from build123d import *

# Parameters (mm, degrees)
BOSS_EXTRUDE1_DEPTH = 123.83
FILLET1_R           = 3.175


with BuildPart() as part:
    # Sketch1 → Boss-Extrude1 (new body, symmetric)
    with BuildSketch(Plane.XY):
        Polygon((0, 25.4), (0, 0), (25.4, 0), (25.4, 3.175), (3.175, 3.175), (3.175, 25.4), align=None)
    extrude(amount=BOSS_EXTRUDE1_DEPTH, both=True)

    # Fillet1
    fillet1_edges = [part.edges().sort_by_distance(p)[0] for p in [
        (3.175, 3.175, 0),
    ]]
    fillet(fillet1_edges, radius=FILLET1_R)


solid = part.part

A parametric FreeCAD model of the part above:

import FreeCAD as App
import Part
import Sketcher
Q = App.Units.Quantity


def edges_at(feature, points):
    """Names of the edges that pass closest to the given points."""
    edges = feature.Shape.Edges
    near = lambda p: min(range(len(edges)), key=lambda i: edges[i].distToShape(Part.Vertex(*p))[0])
    return sorted({f"Edge{near(p) + 1}" for p in points})

doc = App.newDocument("Part")
body = doc.addObject("PartDesign::Body", "Body")

sketch1 = body.newObject("Sketcher::SketchObject", "Sketch")
sketch1.AttachmentSupport = (doc.getObject("XY_Plane"), [""])
sketch1.MapMode = "FlatFace"
sketch1.addGeometry([
    Part.LineSegment(App.Vector(0, 25.4, 0), App.Vector(0, 0, 0)),
    Part.LineSegment(App.Vector(0, 0, 0), App.Vector(25.4, 0, 0)),
    Part.LineSegment(App.Vector(25.4, 0, 0), App.Vector(25.4, 3.2, 0)),
    Part.LineSegment(App.Vector(25.4, 3.2, 0), App.Vector(3.2, 3.2, 0)),
    Part.LineSegment(App.Vector(3.2, 3.2, 0), App.Vector(3.2, 25.4, 0)),
    Part.LineSegment(App.Vector(3.2, 25.4, 0), App.Vector(0, 25.4, 0)),
], False)
sketch1.addConstraint([
    Sketcher.Constraint("Coincident", 0, 2, 1, 1),
    Sketcher.Constraint("Coincident", 1, 2, 2, 1),
    Sketcher.Constraint("Coincident", 2, 2, 3, 1),
    Sketcher.Constraint("Coincident", 3, 2, 4, 1),
    Sketcher.Constraint("Coincident", 4, 2, 5, 1),
    Sketcher.Constraint("Coincident", 5, 2, 0, 1),
    Sketcher.Constraint("Vertical", 0),
    Sketcher.Constraint("Horizontal", 1),
    Sketcher.Constraint("Vertical", 2),
    Sketcher.Constraint("Horizontal", 3),
    Sketcher.Constraint("Vertical", 4),
    Sketcher.Constraint("Horizontal", 5),
    Sketcher.Constraint("Coincident", 0, 2, -1, 1),
    Sketcher.Constraint("Equal", 1, 0),
    Sketcher.Constraint("Equal", 5, 2),
    Sketcher.Constraint("DistanceX", 1, 1, 1, 2, Q("1 in")),
    Sketcher.Constraint("DistanceX", 3, 2, 3, 1, Q("0.875 in")),
])
pad1 = body.newObject("PartDesign::Pad", "Pad")
pad1.Profile = sketch1
pad1.Length = 247.66
pad1.Midplane = True
doc.recompute()

fillet = body.newObject("PartDesign::Fillet", "Fillet")
fillet.Base = (pad1, edges_at(pad1, [(3.175, 3.175, 0)]))
fillet.Radius = Q("0.125 in")

doc.recompute()
